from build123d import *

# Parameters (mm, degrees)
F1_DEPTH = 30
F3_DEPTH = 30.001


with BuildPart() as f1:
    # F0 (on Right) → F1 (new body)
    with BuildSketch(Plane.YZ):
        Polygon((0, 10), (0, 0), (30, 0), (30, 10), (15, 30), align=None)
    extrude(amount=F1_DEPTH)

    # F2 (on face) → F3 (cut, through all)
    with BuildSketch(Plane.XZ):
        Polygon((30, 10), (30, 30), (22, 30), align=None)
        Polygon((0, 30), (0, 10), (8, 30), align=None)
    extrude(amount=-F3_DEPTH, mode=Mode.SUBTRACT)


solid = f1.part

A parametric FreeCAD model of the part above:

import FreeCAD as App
import Part
import Sketcher

doc = App.newDocument("Part")
body = doc.addObject("PartDesign::Body", "Body")

# Sketch on YZ plane
sketch1 = doc.addObject("Sketcher::SketchObject", "Sketch")
body.addObject(sketch1)
sketch1.AttachmentSupport = (doc.YZ_Plane, [""])
sketch1.MapMode = "FlatFace"
sketch1.addGeometry([
    Part.LineSegment(App.Vector(0, 10, 0), App.Vector(0, 0, 0)),  # 0
    Part.LineSegment(App.Vector(0, 0, 0), App.Vector(30, 0, 0)),  # 1
    Part.LineSegment(App.Vector(30, 0, 0), App.Vector(30, 10, 0)),  # 2
    Part.LineSegment(App.Vector(30, 10, 0), App.Vector(15, 30, 0)),  # 3
    Part.LineSegment(App.Vector(15, 30, 0), App.Vector(0, 10, 0)),  # 4
], False)
sketch1.addConstraint([
    Sketcher.Constraint("Coincident", 0, 2, 1, 1),
    Sketcher.Constraint("Coincident", 1, 2, 2, 1),
    Sketcher.Constraint("Coincident", 2, 2, 3, 1),
    Sketcher.Constraint("Coincident", 3, 2, 4, 1),
    Sketcher.Constraint("Coincident", 4, 2, 0, 1),
    Sketcher.Constraint("Vertical", 0),
    Sketcher.Constraint("Horizontal", 1),
    Sketcher.Constraint("Vertical", 2),
    Sketcher.Constraint("Coincident", 0, 2, -1, 1),
    Sketcher.Constraint("Horizontal", 2, 2, 4, 2),
    Sketcher.Constraint("Equal", 3, 4),
    Sketcher.Constraint("DistanceX", 1, 1, 1, 2, 30.0),
    Sketcher.Constraint("DistanceY", 0, 2, 0, 1, 10.0),
    Sketcher.Constraint("Distance", 3, 25.0),
])
pad1 = doc.addObject("PartDesign::Pad", "Pad")
body.addObject(pad1)
pad1.Profile = sketch1
pad1.Length = 30

# Sketch on XZ plane
sketch2 = doc.addObject("Sketcher::SketchObject", "Sketch001")
body.addObject(sketch2)
sketch2.AttachmentSupport = (doc.XZ_Plane, [""])
sketch2.MapMode = "FlatFace"
sketch2.addGeometry([
    Part.LineSegment(App.Vector(30, 10, 0), App.Vector(30, 30, 0)),  # 0
    Part.LineSegment(App.Vector(30, 30, 0), App.Vector(22, 30, 0)),  # 1
    Part.LineSegment(App.Vector(22, 30, 0), App.Vector(30, 10, 0)),  # 2
    Part.LineSegment(App.Vector(0, 30, 0), App.Vector(0, 10, 0)),  # 3
    Part.LineSegment(App.Vector(0, 10, 0), App.Vector(8, 30, 0)),  # 4
    Part.LineSegment(App.Vector(8, 30, 0), App.Vector(0, 30, 0)),  # 5
], False)
sketch2.addConstraint([
    Sketcher.Constraint("Coincident", 0, 2, 1, 1),
    Sketcher.Constraint("Coincident", 1, 2, 2, 1),
    Sketcher.Constraint("Coincident", 2, 2, 0, 1),
    Sketcher.Constraint("Coincident", 3, 2, 4, 1),
    Sketcher.Constraint("Coincident", 4, 2, 5, 1),
    Sketcher.Constraint("Coincident", 5, 2, 3, 1),
    Sketcher.Constraint("Vertical", 0),
    Sketcher.Constraint("Horizontal", 1),
    Sketcher.Constraint("Vertical", 3),
    Sketcher.Constraint("Horizontal", 5),
    Sketcher.Constraint("PointOnObject", 3, 2, -2),
    Sketcher.Constraint("Horizontal", 2, 2, 3, 2),
    Sketcher.Constraint("Horizontal", 1, 2, 4, 2),
    Sketcher.Constraint("Equal", 1, 5),
    Sketcher.Constraint("DistanceX", 1, 2, 1, 1, 8.0),
    Sketcher.Constraint("DistanceY", 0, 1, 0, 2, 20.0),
    Sketcher.Constraint("DistanceX", -1, 1, 0, 2, 30.0),
    Sketcher.Constraint("DistanceY", -1, 1, 0, 2, 30.0),
])
pocket1 = doc.addObject("PartDesign::Pocket", "Pocket")
body.addObject(pocket1)
pocket1.Profile = sketch2
pocket1.Type = "ThroughAll"

doc.recompute()
